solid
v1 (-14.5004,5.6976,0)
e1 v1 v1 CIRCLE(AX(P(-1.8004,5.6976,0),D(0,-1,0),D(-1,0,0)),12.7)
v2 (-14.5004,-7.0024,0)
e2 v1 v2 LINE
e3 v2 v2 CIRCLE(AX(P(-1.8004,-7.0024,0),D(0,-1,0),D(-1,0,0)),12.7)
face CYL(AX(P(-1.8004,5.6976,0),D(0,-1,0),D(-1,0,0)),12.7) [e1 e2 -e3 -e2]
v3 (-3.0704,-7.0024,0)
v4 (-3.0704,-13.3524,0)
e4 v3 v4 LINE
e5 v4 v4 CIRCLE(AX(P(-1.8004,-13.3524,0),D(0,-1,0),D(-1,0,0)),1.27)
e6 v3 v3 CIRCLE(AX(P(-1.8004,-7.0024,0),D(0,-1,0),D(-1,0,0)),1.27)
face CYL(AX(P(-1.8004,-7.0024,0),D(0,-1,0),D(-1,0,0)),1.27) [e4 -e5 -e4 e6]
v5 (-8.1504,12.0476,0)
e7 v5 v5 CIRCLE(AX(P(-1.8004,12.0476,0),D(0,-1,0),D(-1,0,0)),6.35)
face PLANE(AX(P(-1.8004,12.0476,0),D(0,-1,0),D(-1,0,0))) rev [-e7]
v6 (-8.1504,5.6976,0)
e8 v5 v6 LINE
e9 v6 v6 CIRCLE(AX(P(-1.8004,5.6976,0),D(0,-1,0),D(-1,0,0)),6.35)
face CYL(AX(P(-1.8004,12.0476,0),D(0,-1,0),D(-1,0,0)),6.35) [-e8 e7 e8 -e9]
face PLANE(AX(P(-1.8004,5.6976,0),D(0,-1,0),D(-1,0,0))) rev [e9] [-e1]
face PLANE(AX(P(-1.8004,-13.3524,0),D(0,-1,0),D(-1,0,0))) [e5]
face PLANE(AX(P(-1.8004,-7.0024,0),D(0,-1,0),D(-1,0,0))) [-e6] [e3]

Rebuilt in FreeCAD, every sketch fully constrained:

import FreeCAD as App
import Part
import Sketcher
from FreeCAD import Vector
Q = App.Units.Quantity


def add_polygon(sketch, points):
    """Adds a closed chain of lines whose ends are joined by coincident constraints."""
    first, n = sketch.GeometryCount, len(points)
    for a, b in zip(points, points[1:] + points[:1]):
        sketch.addGeometry(Part.LineSegment(App.Vector(*a, 0), App.Vector(*b, 0)), False)
    for i in range(n):
        sketch.addConstraint(Sketcher.Constraint("Coincident", first + i, 2, first + (i + 1) % n, 1))

doc = App.newDocument("Part")
body = doc.addObject("PartDesign::Body", "Body")

sketch1 = body.newObject("Sketcher::SketchObject", "Sketch")
sketch1.AttachmentSupport = (doc.getObject("XY_Plane"), [""])
sketch1.MapMode = "FlatFace"
add_polygon(sketch1, [(-1.8, 12), (-8.2, 12), (-8.2, 5.7), (-14.5, 5.7), (-14.5, -7), (-3.1, -7), (-3.1, -13.4), (-1.8, -13.4)])
sketch1.addGeometry(Part.LineSegment(Vector(-1.8, 12, 0), Vector(-1.8, -13.4, 0)), True)
sketch1.addConstraint([
    Sketcher.Constraint("Horizontal", 0),
    Sketcher.Constraint("Vertical", 1),
    Sketcher.Constraint("Horizontal", 2),
    Sketcher.Constraint("Vertical", 3),
    Sketcher.Constraint("Horizontal", 4),
    Sketcher.Constraint("Vertical", 5),
    Sketcher.Constraint("Horizontal", 6),
    Sketcher.Constraint("Vertical", 7),
    Sketcher.Constraint("Vertical", 8),
    Sketcher.Constraint("Coincident", 8, 1, 7, 2),
    Sketcher.Constraint("Horizontal", 5, 2, 8, 2),
    Sketcher.Constraint("Equal", 0, 2),
    Sketcher.Constraint("Equal", 2, 1),
    Sketcher.Constraint("Equal", 1, 5),
    Sketcher.Constraint("DistanceY", 3, 2, 3, 1, Q("0.5 in")),
    Sketcher.Constraint("DistanceX", 0, 2, 0, 1, Q("0.25 in")),
    Sketcher.Constraint("DistanceX", 6, 1, 6, 2, Q("0.05 in")),
    Sketcher.Constraint("DistanceX", 0, 2, -1, 1, Q("8.1504 mm")),
    Sketcher.Constraint("DistanceY", -1, 1, 0, 2, Q("12.0476 mm")),
])
revolution = body.newObject("PartDesign::Revolution", "Revolution")
revolution.Profile = sketch1
revolution.ReferenceAxis = (sketch1, ["Axis0"])
revolution.Angle = 360

doc.recompute()
